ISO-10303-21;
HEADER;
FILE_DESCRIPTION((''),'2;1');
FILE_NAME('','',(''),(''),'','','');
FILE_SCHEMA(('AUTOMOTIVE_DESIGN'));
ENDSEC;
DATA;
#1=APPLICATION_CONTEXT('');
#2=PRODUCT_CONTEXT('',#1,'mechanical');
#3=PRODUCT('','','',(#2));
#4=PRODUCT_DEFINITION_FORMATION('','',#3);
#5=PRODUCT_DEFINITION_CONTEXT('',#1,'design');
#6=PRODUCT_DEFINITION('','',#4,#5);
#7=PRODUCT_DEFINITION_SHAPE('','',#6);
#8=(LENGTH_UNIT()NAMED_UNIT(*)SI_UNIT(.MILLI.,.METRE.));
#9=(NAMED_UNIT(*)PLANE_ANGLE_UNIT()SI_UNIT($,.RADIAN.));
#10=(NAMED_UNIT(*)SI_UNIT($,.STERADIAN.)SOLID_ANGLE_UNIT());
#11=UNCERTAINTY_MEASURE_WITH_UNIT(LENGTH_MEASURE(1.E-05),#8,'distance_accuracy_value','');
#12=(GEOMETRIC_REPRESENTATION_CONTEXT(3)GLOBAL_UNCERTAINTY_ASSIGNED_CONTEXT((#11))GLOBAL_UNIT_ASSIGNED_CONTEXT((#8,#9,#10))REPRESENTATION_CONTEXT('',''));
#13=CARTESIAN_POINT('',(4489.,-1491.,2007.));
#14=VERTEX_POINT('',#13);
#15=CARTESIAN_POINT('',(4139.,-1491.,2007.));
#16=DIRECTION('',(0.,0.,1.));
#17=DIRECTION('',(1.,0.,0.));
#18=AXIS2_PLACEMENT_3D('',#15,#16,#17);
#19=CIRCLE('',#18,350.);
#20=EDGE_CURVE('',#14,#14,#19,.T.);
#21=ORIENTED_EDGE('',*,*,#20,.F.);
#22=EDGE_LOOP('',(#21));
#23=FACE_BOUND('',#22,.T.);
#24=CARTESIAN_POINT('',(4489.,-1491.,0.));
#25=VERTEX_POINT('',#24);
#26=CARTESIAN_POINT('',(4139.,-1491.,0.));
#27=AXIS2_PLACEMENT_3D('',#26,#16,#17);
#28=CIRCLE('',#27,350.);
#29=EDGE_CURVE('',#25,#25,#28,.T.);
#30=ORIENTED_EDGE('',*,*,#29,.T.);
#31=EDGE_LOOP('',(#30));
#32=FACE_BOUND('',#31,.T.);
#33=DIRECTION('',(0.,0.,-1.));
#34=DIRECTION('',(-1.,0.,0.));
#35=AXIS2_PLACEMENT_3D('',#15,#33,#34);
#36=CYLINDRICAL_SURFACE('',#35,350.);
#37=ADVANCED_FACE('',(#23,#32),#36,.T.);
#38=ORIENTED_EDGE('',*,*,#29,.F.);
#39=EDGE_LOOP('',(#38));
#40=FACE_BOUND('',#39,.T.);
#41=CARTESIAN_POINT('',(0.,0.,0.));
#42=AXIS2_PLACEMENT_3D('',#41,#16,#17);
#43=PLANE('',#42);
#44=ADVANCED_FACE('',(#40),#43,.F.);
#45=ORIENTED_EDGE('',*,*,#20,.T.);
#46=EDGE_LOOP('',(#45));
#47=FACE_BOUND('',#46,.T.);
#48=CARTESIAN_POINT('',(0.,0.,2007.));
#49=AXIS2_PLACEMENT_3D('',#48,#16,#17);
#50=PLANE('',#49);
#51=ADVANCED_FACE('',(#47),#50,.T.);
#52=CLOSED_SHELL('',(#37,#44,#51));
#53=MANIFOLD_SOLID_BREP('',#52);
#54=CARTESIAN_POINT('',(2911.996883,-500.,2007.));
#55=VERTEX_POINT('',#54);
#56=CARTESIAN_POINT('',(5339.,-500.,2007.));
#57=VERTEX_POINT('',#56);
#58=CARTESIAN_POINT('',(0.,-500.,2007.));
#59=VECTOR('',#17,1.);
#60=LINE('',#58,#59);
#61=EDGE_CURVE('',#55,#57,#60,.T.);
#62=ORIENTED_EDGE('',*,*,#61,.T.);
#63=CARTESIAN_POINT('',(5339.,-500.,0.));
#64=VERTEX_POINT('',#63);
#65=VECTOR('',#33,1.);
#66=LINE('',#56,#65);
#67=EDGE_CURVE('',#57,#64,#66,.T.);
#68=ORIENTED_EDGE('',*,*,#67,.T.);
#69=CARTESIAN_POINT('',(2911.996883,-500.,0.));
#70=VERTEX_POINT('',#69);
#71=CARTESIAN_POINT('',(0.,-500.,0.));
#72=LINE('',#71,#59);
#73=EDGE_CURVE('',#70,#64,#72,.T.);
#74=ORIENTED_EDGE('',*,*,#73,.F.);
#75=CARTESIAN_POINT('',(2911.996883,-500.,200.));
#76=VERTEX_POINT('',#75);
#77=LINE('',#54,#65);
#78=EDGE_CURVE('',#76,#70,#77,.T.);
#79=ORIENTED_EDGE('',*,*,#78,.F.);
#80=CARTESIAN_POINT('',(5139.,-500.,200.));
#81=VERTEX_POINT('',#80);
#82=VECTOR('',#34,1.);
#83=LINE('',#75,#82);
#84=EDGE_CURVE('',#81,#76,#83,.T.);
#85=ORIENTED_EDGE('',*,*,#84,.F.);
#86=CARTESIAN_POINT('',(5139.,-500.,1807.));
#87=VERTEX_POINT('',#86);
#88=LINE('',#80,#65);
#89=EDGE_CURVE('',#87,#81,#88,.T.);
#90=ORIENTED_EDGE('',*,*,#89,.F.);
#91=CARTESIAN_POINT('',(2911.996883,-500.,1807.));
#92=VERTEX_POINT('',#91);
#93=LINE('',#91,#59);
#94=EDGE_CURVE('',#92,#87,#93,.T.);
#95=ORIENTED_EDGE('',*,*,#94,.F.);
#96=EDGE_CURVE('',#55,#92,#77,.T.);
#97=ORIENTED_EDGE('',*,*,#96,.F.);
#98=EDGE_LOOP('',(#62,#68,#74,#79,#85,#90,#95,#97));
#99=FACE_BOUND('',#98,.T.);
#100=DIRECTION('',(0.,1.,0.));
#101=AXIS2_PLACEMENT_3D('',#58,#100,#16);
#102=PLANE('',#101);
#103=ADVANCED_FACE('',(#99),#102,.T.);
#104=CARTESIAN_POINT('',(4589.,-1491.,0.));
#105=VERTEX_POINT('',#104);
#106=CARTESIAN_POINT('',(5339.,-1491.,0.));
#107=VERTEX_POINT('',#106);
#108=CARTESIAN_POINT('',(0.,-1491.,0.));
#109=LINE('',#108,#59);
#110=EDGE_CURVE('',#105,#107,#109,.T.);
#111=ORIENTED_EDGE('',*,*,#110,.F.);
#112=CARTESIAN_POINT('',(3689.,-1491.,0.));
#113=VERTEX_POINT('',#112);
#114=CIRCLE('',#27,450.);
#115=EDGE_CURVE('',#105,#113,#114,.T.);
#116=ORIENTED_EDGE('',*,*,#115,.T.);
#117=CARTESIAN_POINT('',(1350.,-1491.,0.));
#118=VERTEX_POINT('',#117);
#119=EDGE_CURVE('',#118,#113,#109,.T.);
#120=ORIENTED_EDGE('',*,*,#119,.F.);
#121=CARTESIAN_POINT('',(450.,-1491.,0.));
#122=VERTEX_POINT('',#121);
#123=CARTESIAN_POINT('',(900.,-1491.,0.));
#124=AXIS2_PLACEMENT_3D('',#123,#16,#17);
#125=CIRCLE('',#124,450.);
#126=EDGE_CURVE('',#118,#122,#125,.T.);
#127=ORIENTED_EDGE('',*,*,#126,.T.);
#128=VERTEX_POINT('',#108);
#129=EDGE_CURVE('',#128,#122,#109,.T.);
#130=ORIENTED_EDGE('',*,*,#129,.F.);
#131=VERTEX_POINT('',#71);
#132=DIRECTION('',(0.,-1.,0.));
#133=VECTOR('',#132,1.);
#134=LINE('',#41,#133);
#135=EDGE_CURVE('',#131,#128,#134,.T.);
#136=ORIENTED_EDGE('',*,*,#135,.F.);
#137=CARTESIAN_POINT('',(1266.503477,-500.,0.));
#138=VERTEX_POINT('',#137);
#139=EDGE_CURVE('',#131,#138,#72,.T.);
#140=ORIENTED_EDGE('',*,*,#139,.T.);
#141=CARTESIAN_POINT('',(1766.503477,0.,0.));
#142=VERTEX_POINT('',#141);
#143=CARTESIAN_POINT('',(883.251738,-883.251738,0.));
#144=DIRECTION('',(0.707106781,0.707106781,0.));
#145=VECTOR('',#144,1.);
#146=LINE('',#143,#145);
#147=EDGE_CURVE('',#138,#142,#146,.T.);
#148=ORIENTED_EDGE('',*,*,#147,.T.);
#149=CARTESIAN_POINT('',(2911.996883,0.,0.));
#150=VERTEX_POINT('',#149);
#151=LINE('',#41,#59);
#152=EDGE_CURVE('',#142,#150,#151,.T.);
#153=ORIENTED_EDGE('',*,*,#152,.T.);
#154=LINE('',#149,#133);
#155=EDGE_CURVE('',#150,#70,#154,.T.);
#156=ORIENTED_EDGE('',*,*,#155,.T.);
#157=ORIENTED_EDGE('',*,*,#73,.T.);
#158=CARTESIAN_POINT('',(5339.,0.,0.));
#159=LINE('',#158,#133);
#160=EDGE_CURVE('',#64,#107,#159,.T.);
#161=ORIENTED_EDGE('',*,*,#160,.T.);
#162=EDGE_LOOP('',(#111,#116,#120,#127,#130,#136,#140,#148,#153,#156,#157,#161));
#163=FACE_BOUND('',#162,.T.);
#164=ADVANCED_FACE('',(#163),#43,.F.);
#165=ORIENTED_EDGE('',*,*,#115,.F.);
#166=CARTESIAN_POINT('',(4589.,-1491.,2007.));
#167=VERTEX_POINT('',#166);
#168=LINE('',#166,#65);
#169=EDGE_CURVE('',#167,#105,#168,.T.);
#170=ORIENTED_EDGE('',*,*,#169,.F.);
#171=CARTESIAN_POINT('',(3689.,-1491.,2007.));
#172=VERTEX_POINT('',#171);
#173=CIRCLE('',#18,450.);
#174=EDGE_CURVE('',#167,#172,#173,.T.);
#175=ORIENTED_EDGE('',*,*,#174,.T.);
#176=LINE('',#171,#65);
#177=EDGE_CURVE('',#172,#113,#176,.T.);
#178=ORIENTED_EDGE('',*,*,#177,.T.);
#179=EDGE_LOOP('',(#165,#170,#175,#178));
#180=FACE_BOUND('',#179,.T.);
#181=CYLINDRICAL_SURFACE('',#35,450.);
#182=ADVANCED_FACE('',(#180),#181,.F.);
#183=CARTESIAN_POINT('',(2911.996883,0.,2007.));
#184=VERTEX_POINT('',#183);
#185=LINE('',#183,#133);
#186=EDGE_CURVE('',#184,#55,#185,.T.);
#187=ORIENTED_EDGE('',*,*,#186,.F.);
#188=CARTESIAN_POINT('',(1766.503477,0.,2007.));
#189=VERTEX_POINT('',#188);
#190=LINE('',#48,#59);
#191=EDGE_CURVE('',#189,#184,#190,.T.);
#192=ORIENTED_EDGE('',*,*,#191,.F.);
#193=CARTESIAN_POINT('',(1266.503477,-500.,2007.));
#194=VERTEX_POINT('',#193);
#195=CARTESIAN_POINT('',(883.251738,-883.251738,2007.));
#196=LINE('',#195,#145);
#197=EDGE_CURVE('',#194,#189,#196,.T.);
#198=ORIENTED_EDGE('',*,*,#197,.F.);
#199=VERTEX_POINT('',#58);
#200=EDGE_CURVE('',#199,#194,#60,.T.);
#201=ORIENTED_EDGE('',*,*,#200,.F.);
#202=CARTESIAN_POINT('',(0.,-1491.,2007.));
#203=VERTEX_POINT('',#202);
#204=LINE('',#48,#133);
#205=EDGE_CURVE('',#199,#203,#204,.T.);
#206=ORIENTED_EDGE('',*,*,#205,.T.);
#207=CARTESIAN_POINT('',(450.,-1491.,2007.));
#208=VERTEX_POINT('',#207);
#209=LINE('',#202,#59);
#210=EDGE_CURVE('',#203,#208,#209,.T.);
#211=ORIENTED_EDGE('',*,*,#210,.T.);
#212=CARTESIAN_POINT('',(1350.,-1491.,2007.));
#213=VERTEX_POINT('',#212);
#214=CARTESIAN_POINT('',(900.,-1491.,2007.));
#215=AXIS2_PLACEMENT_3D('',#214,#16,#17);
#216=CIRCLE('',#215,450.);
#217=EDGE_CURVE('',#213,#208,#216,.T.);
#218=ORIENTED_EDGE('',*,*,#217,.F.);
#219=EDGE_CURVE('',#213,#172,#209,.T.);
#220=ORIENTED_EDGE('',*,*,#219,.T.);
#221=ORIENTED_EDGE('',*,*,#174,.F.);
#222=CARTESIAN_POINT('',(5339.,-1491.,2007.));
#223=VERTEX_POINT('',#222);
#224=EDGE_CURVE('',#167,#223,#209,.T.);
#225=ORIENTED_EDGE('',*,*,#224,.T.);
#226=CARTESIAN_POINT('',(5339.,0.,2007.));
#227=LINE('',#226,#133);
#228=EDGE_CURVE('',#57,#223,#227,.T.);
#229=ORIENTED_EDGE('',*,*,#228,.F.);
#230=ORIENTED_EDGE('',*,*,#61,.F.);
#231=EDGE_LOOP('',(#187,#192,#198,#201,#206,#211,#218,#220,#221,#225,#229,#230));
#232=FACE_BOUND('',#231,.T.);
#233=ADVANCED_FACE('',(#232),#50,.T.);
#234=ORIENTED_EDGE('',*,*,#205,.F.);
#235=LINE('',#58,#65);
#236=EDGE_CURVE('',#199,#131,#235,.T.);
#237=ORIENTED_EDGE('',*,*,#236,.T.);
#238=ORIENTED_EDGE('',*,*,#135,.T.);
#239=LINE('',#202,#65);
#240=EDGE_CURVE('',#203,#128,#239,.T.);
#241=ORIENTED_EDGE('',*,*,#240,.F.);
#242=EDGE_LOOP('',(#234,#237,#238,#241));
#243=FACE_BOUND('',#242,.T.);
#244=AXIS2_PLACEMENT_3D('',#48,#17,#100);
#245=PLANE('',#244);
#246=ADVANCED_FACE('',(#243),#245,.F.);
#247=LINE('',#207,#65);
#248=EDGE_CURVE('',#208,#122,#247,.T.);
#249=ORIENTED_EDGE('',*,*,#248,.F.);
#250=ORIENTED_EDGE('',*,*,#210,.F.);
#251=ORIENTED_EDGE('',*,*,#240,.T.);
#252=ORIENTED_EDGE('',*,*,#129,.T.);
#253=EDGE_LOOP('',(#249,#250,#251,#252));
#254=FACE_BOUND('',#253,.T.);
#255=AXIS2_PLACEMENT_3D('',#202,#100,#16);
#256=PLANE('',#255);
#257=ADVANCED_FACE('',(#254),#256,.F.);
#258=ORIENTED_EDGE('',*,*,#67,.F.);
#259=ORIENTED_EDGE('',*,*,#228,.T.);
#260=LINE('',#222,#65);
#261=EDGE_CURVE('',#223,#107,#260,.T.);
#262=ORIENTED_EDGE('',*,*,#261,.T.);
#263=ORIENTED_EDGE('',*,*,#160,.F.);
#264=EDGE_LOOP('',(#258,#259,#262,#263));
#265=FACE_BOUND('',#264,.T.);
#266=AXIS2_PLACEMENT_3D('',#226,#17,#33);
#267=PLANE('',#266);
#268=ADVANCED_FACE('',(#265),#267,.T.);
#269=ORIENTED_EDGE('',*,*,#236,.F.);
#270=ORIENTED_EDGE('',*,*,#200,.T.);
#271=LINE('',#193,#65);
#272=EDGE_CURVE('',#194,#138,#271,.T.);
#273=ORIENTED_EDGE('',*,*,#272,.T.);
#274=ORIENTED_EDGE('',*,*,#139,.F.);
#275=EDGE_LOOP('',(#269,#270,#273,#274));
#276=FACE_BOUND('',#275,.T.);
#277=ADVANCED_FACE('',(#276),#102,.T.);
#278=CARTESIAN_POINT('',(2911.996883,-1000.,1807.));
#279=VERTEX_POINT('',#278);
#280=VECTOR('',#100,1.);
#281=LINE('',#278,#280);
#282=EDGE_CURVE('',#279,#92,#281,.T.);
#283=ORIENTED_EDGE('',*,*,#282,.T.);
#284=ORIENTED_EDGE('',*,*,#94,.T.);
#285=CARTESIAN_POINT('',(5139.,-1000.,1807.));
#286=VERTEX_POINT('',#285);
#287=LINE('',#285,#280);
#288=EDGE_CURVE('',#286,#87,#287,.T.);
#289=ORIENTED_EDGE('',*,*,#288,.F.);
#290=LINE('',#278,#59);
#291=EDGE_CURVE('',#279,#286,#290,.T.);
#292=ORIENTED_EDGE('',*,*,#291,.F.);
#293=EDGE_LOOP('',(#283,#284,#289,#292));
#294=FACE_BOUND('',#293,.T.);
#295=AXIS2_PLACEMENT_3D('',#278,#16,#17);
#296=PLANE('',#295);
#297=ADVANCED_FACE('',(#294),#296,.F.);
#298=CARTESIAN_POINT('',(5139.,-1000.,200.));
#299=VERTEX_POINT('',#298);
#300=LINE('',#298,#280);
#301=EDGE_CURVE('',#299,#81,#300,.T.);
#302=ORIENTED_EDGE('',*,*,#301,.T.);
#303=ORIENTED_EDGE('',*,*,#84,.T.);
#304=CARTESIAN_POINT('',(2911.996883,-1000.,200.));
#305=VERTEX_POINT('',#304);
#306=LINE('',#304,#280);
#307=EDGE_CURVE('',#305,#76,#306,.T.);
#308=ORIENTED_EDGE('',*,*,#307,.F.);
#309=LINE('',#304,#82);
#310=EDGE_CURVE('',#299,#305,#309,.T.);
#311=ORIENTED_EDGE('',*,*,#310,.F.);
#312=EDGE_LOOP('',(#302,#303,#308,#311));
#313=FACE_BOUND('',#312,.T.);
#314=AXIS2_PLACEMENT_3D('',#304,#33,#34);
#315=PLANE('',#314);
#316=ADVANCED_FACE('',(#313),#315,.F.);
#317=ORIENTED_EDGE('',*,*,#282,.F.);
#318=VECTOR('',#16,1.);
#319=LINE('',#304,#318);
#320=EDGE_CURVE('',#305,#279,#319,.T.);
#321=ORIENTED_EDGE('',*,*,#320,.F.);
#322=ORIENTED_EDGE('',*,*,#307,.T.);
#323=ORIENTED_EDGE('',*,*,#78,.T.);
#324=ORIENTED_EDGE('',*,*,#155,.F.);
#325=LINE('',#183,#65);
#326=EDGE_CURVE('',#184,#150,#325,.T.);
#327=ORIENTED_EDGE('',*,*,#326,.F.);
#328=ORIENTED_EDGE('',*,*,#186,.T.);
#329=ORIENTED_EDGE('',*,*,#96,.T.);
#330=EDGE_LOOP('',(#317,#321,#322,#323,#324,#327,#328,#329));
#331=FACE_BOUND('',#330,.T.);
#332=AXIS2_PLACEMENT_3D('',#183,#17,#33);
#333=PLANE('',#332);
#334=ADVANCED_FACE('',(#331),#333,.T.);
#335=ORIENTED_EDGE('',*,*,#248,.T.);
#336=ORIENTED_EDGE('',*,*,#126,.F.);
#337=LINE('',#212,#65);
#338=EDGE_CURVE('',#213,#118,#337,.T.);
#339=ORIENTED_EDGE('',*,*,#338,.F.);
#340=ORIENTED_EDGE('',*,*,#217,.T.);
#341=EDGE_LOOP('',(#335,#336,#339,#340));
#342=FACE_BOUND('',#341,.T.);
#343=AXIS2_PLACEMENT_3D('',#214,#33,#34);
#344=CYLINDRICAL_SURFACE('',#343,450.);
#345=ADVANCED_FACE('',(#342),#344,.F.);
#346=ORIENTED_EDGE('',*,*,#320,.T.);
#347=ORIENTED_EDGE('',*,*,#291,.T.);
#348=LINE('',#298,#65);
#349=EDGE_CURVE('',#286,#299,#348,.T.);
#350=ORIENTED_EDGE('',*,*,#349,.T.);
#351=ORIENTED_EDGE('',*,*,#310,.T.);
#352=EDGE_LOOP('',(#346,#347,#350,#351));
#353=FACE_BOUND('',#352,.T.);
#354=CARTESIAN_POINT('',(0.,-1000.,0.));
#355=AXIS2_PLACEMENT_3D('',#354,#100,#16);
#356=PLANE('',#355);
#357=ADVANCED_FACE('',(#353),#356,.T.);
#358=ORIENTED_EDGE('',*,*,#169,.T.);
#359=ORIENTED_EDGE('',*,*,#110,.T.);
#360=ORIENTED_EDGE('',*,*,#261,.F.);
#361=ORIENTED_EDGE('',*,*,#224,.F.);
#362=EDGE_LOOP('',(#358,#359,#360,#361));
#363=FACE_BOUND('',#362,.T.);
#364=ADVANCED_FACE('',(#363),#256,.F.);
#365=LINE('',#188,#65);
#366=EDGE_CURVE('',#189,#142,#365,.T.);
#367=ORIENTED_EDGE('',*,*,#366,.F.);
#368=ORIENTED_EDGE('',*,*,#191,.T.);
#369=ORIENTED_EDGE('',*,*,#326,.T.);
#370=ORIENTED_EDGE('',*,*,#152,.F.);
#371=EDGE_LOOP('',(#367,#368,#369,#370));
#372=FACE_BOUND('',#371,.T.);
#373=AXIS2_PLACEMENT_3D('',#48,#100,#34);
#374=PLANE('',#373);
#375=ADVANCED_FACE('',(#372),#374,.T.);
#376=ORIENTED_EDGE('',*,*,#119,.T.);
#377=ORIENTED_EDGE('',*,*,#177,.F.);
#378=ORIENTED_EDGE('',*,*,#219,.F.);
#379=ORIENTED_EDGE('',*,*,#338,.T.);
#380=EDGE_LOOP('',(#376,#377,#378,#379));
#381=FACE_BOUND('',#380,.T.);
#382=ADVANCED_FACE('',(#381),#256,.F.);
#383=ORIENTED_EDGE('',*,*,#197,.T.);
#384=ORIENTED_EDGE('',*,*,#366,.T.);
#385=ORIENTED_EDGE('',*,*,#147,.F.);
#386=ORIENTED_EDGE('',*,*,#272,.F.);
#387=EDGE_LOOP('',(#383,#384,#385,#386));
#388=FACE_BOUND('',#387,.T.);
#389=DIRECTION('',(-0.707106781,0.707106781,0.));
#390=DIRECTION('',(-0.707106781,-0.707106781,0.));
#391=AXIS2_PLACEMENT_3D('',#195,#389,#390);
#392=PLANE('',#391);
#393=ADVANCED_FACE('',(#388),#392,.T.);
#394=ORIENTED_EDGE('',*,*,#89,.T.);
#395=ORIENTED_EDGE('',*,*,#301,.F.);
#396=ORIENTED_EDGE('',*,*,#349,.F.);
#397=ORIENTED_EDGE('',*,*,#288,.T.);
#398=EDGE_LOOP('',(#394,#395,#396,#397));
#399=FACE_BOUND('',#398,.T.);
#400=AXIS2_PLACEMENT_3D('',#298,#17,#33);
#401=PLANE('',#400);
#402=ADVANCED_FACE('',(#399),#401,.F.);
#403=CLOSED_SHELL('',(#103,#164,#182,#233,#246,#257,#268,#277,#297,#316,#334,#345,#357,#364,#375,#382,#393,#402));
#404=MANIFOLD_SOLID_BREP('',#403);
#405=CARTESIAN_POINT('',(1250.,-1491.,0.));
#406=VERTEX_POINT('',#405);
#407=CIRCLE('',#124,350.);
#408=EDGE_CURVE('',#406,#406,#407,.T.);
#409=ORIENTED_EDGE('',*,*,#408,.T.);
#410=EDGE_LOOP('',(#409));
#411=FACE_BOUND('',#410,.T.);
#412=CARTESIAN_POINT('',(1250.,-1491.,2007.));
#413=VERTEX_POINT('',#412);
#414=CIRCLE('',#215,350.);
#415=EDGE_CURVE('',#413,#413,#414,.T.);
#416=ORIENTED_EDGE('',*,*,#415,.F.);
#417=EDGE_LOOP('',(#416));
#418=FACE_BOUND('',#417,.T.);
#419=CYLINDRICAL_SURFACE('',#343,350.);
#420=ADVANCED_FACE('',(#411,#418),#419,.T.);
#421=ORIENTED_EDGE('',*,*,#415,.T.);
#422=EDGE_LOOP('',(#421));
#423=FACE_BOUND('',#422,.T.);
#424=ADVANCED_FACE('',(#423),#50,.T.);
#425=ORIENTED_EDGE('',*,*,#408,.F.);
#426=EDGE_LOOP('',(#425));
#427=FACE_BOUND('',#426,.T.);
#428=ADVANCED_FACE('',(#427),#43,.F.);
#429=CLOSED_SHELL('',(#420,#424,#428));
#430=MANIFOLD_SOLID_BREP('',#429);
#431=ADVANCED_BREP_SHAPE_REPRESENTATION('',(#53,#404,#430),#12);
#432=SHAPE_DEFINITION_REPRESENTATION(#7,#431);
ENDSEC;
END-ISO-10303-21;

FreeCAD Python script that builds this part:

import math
import FreeCAD as App
import Part
import Sketcher
from FreeCAD import Vector
Q = App.Units.Quantity

doc = App.newDocument("Part")
body = doc.addObject("PartDesign::Body", "Body")

# Sketch on XY plane
sketch1 = body.newObject("Sketcher::SketchObject", "Sketch")
sketch1.AttachmentSupport = (doc.getObject("XY_Plane"), [""])
sketch1.MapMode = "FlatFace"
sketch1.addGeometry([
    Part.ArcOfCircle(Part.Circle(Vector(4139, -1491, 0), Vector(0, 0, 1), 450), math.radians(0), math.radians(180)),  # 0
    Part.LineSegment(Vector(4589, -1491, 0), Vector(5339, -1491, 0)),  # 1
    Part.LineSegment(Vector(5339, -1491, 0), Vector(5339, -500, 0)),  # 2
    Part.LineSegment(Vector(5339, -500, 0), Vector(2911.996883, -500, 0)),  # 3
    Part.LineSegment(Vector(2911.996883, -500, 0), Vector(2911.996883, 0, 0)),  # 4
    Part.LineSegment(Vector(2911.996883, 0, 0), Vector(1766.503477, 0, 0)),  # 5
    Part.LineSegment(Vector(1766.503477, 0, 0), Vector(1266.503477, -500, 0)),  # 6
    Part.LineSegment(Vector(1266.503477, -500, 0), Vector(0, -500, 0)),  # 7
    Part.LineSegment(Vector(0, -500, 0), Vector(0, -1491, 0)),  # 8
    Part.LineSegment(Vector(0, -1491, 0), Vector(450, -1491, 0)),  # 9
    Part.ArcOfCircle(Part.Circle(Vector(900, -1491, 0), Vector(0, 0, 1), 450), math.radians(0), math.radians(180)),  # 10
    Part.LineSegment(Vector(1350, -1491, 0), Vector(3689, -1491, 0)),  # 11
], False)
sketch1.addConstraint([
    Sketcher.Constraint("Coincident", 0, 1, 1, 1),
    Sketcher.Constraint("Coincident", 1, 2, 2, 1),
    Sketcher.Constraint("Coincident", 2, 2, 3, 1),
    Sketcher.Constraint("Coincident", 3, 2, 4, 1),
    Sketcher.Constraint("Coincident", 4, 2, 5, 1),
    Sketcher.Constraint("Coincident", 5, 2, 6, 1),
    Sketcher.Constraint("Coincident", 6, 2, 7, 1),
    Sketcher.Constraint("Coincident", 7, 2, 8, 1),
    Sketcher.Constraint("Coincident", 8, 2, 9, 1),
    Sketcher.Constraint("Coincident", 9, 2, 10, 2),
    Sketcher.Constraint("Coincident", 10, 1, 11, 1),
    Sketcher.Constraint("Coincident", 11, 2, 0, 2),
    Sketcher.Constraint("Horizontal", 1),
    Sketcher.Constraint("Vertical", 2),
    Sketcher.Constraint("Horizontal", 3),
    Sketcher.Constraint("Vertical", 4),
    Sketcher.Constraint("Horizontal", 5),
    Sketcher.Constraint("Horizontal", 7),
    Sketcher.Constraint("Vertical", 8),
    Sketcher.Constraint("Horizontal", 9),
    Sketcher.Constraint("Horizontal", 11),
    Sketcher.Constraint("Equal", 0, 10),
    Sketcher.Constraint("PointOnObject", 4, 2, -1),
    Sketcher.Constraint("PointOnObject", 7, 2, -2),
    Sketcher.Constraint("Horizontal", 0, 3, 10, 3),
    Sketcher.Constraint("Horizontal", 10, 3, 0, 1),
    Sketcher.Constraint("Horizontal", 3, 2, 6, 2),
    Sketcher.Constraint("Horizontal", 1, 2, 8, 2),
    Sketcher.Constraint("Radius", 0, Q("450 mm")),
    Sketcher.Constraint("DistanceX", 1, 1, 1, 2, Q("750 mm")),
    Sketcher.Constraint("DistanceX", 9, 1, 9, 2, Q("450 mm")),
    Sketcher.Constraint("DistanceX", 11, 1, 11, 2, Q("2339 mm")),
    Sketcher.Constraint("DistanceY", 2, 1, 2, 2, Q("991 mm")),
    Sketcher.Constraint("DistanceY", 4, 1, 4, 2, Q("500 mm")),
    Sketcher.Constraint("Angle", 6, Q("-135 deg")),
    Sketcher.Constraint("DistanceY", 11, 2, -1, 1, Q("1491 mm")),
    Sketcher.Constraint("DistanceX", 3, 2, 3, 1, Q("2427.003117 mm")),
    Sketcher.Constraint("DistanceX", 5, 2, 5, 1, Q("1145.493406 mm")),
])
pad1 = body.newObject("PartDesign::Pad", "Pad")
pad1.Profile = sketch1
pad1.Length = 2007

# Sketch on XZ plane
sketch2 = body.newObject("Sketcher::SketchObject", "Sketch001")
sketch2.AttachmentSupport = (doc.getObject("XZ_Plane"), [""])
sketch2.MapMode = "FlatFace"
sketch2.AttachmentOffset = App.Placement(Vector(0, 0, 500), App.Rotation())
sketch2.addGeometry([
    Part.LineSegment(Vector(2911.996883, 200, 0), Vector(2911.996883, 1807, 0)),
    Part.LineSegment(Vector(2911.996883, 1807, 0), Vector(5139, 1807, 0)),
    Part.LineSegment(Vector(5139, 1807, 0), Vector(5139, 200, 0)),
    Part.LineSegment(Vector(5139, 200, 0), Vector(2911.996883, 200, 0)),
], False)
sketch2.addConstraint([
    Sketcher.Constraint("Coincident", 0, 2, 1, 1),
    Sketcher.Constraint("Coincident", 1, 2, 2, 1),
    Sketcher.Constraint("Coincident", 2, 2, 3, 1),
    Sketcher.Constraint("Coincident", 3, 2, 0, 1),
    Sketcher.Constraint("Vertical", 0),
    Sketcher.Constraint("Horizontal", 1),
    Sketcher.Constraint("Vertical", 2),
    Sketcher.Constraint("Horizontal", 3),
    Sketcher.Constraint("DistanceY", 0, 1, 0, 2, Q("1607 mm")),
    Sketcher.Constraint("DistanceY", -1, 1, 0, 2, Q("1807 mm")),
    Sketcher.Constraint("DistanceX", -1, 1, 1, 2, Q("5139 mm")),
    Sketcher.Constraint("DistanceX", 1, 1, 1, 2, Q("2227.003117 mm")),
])
pocket1 = body.newObject("PartDesign::Pocket", "Pocket")
pocket1.Profile = sketch2
pocket1.Length = 500
pocket1.Reversed = True
body2 = doc.addObject("PartDesign::Body", "Body001")

# Sketch on XY plane
sketch3 = body2.newObject("Sketcher::SketchObject", "Sketch002")
sketch3.AttachmentSupport = (doc.getObject("XY_Plane001"), [""])
sketch3.MapMode = "FlatFace"
sketch3.addGeometry(Part.Circle(Vector(900, -1491, 0), Vector(0, 0, 1), 350), False)
sketch3.addConstraint([
    Sketcher.Constraint("Diameter", 0, Q("700 mm")),
    Sketcher.Constraint("DistanceX", -1, 1, 0, 3, Q("900 mm")),
    Sketcher.Constraint("DistanceY", 0, 3, -1, 1, Q("1491 mm")),
])
pad2 = body2.newObject("PartDesign::Pad", "Pad001")
pad2.Profile = sketch3
pad2.Length = 2007
body3 = doc.addObject("PartDesign::Body", "Body002")

# Sketch on XY plane
sketch4 = body3.newObject("Sketcher::SketchObject", "Sketch003")
sketch4.AttachmentSupport = (doc.getObject("XY_Plane002"), [""])
sketch4.MapMode = "FlatFace"
sketch4.addGeometry(Part.Circle(Vector(4139, -1491, 0), Vector(0, 0, 1), 350), False)
sketch4.addConstraint([
    Sketcher.Constraint("Diameter", 0, Q("700 mm")),
    Sketcher.Constraint("DistanceX", -1, 1, 0, 3, Q("4139 mm")),
    Sketcher.Constraint("DistanceY", 0, 3, -1, 1, Q("1491 mm")),
])
pad3 = body3.newObject("PartDesign::Pad", "Pad002")
pad3.Profile = sketch4
pad3.Length = 2007

doc.recompute()
